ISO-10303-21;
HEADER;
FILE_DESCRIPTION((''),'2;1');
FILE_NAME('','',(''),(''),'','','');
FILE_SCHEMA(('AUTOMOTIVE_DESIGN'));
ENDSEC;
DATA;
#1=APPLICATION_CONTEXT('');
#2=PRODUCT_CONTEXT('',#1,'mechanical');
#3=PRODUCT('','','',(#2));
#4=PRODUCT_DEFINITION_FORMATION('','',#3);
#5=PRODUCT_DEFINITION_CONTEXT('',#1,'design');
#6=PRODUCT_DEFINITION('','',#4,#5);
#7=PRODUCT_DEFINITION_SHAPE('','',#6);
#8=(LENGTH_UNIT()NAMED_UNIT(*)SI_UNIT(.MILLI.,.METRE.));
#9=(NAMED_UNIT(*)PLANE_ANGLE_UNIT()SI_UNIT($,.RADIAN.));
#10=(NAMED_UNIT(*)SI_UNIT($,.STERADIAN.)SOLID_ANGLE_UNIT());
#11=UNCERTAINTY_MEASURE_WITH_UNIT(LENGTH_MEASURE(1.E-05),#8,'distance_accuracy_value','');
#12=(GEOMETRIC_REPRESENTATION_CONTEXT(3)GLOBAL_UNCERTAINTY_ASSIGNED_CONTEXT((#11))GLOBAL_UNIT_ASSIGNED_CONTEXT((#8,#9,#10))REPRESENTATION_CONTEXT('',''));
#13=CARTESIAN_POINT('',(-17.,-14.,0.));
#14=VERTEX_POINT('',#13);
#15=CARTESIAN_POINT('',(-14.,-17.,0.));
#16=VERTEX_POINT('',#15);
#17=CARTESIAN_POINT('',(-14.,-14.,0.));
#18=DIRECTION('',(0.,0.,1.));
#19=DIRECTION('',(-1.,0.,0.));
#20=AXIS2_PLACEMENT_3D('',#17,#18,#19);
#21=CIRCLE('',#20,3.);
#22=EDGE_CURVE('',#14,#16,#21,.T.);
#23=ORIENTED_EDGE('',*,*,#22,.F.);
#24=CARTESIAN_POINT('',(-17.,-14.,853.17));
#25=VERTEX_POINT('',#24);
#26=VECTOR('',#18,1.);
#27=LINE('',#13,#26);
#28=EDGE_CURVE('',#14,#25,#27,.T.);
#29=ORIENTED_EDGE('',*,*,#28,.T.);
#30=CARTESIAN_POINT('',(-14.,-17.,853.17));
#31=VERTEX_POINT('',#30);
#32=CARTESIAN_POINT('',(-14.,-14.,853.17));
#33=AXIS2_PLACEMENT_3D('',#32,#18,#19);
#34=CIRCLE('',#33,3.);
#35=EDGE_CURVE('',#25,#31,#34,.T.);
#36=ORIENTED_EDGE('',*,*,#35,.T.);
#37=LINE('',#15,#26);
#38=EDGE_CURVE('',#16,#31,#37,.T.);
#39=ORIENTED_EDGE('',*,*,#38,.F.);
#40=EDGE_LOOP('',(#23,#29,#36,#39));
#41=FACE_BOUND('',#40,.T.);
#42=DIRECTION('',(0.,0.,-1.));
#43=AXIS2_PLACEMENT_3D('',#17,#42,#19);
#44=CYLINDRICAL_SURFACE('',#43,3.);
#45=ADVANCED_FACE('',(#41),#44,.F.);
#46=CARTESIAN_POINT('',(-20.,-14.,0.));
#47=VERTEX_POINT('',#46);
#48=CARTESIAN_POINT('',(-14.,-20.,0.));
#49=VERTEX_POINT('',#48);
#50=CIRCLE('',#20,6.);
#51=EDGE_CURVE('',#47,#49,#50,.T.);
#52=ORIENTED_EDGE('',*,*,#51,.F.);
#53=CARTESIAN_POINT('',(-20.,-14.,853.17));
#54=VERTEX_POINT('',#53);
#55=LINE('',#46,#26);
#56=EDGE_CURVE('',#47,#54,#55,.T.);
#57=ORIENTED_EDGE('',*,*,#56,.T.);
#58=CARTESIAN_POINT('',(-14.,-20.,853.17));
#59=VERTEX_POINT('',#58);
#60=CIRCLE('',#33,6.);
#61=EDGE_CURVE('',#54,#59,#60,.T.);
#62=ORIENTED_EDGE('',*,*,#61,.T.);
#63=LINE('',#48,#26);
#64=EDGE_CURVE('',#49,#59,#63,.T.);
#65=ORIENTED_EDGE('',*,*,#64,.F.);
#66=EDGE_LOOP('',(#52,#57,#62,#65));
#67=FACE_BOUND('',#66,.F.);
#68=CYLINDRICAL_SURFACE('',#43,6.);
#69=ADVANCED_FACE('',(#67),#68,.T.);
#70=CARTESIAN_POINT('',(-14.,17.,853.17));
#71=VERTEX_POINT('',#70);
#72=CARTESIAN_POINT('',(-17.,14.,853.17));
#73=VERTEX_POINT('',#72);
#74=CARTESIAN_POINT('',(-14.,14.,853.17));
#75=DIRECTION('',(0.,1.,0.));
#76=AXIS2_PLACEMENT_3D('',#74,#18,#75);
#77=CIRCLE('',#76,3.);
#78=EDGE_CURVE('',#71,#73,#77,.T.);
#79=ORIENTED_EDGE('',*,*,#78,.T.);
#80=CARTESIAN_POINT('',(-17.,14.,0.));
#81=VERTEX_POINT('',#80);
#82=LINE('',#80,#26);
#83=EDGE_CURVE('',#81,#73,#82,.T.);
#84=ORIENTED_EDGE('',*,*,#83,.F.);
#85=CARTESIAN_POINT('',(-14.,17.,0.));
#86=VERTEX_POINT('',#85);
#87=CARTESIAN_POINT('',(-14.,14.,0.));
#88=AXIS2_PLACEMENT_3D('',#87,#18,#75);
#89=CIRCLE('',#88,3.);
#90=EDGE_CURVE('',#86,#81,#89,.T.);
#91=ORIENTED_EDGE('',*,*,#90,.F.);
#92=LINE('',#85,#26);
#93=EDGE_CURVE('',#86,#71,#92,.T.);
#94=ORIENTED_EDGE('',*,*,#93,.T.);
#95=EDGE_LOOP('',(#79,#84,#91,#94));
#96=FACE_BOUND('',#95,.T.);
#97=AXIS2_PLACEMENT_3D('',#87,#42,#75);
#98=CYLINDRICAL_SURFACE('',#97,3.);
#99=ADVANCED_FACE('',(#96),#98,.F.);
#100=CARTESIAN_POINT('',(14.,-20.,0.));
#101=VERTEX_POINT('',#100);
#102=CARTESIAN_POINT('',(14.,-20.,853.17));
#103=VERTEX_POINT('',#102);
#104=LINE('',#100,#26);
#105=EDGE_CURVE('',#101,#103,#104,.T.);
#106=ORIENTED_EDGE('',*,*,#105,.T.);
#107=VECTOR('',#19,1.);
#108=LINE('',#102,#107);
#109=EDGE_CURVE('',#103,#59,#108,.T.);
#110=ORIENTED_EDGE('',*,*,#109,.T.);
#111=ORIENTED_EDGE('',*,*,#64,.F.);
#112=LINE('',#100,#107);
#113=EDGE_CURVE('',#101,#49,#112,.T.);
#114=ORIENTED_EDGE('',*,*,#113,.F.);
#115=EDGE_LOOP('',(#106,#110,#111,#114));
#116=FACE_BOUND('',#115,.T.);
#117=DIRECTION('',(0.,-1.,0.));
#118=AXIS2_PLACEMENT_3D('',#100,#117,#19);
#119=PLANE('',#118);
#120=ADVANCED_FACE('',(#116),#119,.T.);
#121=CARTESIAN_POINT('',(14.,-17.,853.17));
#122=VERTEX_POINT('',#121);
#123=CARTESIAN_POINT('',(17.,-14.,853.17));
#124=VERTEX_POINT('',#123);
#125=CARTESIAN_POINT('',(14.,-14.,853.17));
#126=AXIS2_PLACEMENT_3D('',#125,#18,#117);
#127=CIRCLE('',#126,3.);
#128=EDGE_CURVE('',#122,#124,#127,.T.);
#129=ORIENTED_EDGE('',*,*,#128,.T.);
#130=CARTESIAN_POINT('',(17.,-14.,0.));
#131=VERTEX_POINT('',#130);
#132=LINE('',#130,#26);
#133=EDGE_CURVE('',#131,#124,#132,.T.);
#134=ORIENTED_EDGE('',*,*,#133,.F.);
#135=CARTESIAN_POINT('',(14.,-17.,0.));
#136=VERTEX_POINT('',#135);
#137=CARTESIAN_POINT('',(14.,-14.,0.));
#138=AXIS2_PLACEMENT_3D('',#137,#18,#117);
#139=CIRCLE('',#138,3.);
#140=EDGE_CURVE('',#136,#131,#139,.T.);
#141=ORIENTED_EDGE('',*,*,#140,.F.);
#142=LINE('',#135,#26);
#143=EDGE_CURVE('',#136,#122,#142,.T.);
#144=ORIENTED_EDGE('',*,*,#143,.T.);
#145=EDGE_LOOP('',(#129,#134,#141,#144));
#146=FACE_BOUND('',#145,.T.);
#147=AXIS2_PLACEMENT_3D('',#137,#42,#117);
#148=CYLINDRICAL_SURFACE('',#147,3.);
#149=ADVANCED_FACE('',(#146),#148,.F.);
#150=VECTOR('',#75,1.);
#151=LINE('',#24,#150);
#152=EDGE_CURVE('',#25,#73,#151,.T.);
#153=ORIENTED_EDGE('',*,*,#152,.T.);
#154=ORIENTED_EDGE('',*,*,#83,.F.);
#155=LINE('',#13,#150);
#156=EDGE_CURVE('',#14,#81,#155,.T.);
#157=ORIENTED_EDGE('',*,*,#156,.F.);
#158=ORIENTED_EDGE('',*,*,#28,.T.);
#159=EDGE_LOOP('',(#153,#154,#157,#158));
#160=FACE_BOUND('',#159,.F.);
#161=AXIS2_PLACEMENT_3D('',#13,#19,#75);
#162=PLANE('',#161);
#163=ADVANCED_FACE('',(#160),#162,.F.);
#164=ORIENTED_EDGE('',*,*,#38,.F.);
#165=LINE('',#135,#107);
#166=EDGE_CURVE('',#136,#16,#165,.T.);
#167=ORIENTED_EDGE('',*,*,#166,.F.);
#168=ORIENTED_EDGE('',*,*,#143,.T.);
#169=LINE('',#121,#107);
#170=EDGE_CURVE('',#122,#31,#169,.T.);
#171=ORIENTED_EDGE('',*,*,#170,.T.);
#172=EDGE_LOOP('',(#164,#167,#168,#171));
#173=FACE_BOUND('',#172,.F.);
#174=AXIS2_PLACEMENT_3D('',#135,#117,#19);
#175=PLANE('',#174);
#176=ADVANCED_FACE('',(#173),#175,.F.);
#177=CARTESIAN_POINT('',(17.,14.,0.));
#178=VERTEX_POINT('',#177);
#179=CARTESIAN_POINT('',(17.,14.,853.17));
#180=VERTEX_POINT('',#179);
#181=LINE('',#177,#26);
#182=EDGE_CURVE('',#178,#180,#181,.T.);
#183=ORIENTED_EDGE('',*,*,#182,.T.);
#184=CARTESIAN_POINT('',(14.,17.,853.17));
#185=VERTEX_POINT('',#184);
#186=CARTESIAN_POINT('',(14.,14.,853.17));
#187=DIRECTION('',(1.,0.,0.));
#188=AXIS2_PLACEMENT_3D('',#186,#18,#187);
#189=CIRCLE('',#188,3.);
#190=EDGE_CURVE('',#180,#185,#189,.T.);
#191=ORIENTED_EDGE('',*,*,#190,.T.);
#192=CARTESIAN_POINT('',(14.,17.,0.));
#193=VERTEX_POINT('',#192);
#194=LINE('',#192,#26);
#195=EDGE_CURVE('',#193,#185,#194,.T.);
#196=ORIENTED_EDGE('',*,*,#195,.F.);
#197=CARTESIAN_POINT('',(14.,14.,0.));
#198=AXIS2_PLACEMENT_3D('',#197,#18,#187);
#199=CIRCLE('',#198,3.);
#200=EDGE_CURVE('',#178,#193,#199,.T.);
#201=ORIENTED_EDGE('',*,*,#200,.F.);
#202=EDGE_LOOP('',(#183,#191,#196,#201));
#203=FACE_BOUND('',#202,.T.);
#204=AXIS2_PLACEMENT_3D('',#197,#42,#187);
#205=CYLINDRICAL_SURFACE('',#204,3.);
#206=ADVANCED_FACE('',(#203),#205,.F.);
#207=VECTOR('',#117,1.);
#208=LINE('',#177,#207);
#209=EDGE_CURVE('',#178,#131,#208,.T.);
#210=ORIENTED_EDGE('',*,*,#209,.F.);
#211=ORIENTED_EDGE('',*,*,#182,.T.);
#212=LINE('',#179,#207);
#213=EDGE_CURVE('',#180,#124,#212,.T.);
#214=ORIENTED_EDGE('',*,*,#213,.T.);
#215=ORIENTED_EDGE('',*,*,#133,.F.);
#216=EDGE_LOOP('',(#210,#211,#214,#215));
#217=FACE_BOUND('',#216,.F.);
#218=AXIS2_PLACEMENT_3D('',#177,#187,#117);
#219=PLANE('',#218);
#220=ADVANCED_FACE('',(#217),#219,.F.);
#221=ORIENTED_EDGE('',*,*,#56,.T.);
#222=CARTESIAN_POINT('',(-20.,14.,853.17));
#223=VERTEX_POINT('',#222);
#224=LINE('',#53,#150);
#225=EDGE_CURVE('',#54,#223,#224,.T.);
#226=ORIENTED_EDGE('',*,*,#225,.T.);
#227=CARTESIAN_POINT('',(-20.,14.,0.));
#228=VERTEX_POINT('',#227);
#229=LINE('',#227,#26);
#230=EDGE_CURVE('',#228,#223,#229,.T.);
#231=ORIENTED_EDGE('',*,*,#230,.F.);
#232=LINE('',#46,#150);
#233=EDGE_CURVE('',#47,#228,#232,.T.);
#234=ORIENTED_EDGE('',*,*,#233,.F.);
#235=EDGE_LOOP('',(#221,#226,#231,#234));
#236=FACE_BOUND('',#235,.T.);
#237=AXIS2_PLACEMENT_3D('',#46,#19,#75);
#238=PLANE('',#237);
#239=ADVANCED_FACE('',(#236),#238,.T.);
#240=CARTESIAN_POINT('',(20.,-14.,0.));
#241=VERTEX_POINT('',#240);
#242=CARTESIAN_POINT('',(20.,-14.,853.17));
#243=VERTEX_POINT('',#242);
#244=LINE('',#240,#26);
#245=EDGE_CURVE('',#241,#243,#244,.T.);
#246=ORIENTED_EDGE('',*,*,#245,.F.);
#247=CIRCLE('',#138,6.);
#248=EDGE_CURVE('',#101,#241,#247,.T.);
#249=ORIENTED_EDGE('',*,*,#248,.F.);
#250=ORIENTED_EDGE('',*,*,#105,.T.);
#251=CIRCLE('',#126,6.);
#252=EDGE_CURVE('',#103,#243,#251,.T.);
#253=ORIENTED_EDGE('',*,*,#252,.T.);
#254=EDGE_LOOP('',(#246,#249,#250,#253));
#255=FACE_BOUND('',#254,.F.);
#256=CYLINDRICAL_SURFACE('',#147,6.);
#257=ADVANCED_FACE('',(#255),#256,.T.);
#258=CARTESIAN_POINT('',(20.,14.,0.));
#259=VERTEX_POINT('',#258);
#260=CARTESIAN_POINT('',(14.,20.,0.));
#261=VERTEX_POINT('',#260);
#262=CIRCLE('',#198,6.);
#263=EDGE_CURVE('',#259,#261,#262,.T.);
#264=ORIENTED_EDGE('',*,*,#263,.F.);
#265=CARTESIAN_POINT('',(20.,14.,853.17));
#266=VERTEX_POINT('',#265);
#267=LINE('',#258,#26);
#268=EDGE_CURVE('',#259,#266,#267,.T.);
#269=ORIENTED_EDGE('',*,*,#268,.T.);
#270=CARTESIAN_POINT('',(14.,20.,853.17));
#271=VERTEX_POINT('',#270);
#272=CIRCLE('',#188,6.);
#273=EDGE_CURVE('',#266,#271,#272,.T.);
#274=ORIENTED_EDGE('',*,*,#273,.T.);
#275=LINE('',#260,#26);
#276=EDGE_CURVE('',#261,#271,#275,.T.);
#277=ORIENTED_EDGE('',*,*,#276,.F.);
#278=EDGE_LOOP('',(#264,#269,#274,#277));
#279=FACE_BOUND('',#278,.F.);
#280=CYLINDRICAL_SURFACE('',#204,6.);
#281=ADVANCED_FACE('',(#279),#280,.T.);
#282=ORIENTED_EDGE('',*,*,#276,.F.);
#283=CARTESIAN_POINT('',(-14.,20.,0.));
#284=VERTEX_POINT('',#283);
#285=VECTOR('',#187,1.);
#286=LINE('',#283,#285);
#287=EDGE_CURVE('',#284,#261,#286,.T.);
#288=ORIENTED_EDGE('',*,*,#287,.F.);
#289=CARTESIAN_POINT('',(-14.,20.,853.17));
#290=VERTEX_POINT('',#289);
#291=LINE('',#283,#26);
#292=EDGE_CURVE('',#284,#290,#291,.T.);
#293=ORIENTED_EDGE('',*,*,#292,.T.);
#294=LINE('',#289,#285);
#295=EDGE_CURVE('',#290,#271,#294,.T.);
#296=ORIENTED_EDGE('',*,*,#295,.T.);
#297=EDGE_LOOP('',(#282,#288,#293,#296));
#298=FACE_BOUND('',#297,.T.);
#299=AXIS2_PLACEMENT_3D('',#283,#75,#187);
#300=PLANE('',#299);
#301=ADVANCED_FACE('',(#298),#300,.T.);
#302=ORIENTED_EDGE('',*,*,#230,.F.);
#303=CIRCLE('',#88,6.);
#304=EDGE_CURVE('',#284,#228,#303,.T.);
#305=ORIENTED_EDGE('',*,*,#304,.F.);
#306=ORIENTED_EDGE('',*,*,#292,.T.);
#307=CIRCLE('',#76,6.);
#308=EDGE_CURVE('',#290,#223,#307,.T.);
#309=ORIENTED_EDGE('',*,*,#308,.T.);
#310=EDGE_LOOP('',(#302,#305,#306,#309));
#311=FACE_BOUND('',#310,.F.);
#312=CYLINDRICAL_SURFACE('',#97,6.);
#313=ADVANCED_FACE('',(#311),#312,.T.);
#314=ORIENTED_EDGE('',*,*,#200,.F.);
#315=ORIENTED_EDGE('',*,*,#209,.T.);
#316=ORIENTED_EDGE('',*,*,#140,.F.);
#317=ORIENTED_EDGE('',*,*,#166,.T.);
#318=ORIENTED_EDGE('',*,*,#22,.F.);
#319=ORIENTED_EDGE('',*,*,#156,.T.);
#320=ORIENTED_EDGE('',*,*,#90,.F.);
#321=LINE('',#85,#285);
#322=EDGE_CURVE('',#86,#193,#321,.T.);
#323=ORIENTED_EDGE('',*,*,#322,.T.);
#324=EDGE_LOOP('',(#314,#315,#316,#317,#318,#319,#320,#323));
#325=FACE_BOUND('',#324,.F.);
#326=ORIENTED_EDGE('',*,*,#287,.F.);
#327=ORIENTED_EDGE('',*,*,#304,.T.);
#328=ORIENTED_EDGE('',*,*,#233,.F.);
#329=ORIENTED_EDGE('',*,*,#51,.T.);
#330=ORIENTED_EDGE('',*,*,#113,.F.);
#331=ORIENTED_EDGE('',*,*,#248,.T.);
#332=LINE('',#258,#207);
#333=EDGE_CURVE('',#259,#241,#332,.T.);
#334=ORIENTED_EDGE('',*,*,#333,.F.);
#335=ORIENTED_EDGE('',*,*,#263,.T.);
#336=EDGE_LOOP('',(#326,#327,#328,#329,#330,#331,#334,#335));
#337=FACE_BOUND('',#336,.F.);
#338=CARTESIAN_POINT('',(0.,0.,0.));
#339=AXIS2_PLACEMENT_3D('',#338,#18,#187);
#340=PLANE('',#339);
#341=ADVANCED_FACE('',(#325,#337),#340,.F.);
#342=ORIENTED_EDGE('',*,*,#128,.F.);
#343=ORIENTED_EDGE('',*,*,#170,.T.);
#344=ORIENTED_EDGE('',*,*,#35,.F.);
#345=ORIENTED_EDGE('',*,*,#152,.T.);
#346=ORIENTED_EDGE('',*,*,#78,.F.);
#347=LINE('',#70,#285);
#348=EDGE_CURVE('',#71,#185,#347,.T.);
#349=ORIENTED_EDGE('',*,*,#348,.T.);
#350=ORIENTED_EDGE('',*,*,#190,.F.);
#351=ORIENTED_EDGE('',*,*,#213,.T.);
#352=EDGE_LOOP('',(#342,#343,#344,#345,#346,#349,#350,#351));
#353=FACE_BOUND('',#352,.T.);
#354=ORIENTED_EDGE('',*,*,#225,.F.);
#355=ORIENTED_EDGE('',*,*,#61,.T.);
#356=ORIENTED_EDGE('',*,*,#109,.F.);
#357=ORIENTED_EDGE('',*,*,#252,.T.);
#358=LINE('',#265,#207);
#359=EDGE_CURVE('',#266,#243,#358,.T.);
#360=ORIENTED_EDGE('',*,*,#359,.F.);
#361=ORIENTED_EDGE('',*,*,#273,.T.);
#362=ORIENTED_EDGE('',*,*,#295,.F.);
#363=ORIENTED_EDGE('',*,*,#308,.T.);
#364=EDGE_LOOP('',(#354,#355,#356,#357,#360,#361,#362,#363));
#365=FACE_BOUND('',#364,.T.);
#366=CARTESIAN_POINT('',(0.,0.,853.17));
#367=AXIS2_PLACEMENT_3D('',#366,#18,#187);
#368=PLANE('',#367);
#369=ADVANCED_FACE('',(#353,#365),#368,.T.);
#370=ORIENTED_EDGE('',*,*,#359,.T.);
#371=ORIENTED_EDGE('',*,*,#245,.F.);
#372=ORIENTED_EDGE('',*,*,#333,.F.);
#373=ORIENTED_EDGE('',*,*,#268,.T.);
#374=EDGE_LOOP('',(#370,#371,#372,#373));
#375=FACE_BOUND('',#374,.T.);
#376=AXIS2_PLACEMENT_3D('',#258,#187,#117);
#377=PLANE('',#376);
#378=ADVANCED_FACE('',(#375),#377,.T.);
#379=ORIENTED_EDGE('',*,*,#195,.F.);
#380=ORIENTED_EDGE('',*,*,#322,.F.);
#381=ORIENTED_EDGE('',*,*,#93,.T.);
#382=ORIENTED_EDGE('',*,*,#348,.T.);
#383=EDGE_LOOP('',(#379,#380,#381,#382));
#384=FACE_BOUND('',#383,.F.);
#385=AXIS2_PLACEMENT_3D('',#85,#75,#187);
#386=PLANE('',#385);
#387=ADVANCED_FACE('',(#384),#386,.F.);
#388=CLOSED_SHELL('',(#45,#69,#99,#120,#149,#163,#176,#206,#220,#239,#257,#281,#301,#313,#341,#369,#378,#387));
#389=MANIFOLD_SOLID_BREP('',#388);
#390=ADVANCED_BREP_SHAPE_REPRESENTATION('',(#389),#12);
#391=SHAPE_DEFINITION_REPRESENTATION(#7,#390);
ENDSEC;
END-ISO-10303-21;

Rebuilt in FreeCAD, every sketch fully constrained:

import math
import FreeCAD as App
import Part
import Sketcher
from FreeCAD import Vector
Q = App.Units.Quantity

doc = App.newDocument("Part")
body = doc.addObject("PartDesign::Body", "Body")

sketch1 = body.newObject("Sketcher::SketchObject", "Sketch")
sketch1.AttachmentSupport = (doc.getObject("XY_Plane"), [""])
sketch1.MapMode = "FlatFace"
sketch1.addGeometry([
    Part.LineSegment(Vector(-20, 14, 0), Vector(-20, -14, 0)),
    Part.ArcOfCircle(Part.Circle(Vector(-14, -14, 0), Vector(0, 0, 1), 6), math.radians(180), math.radians(270)),
    Part.LineSegment(Vector(-14, -20, 0), Vector(14, -20, 0)),
    Part.ArcOfCircle(Part.Circle(Vector(14, -14, 0), Vector(0, 0, 1), 6), math.radians(-90), math.radians(0)),
    Part.LineSegment(Vector(20, -14, 0), Vector(20, 14, 0)),
    Part.ArcOfCircle(Part.Circle(Vector(14, 14, 0), Vector(0, 0, 1), 6), math.radians(0), math.radians(90)),
    Part.LineSegment(Vector(14, 20, 0), Vector(-14, 20, 0)),
    Part.ArcOfCircle(Part.Circle(Vector(-14, 14, 0), Vector(0, 0, 1), 6), math.radians(90), math.radians(180)),
    Part.ArcOfCircle(Part.Circle(Vector(-14, 14, 0), Vector(0, 0, 1), 3), math.radians(90), math.radians(180)),
    Part.LineSegment(Vector(-14, 17, 0), Vector(14, 17, 0)),
    Part.ArcOfCircle(Part.Circle(Vector(14, 14, 0), Vector(0, 0, 1), 3), math.radians(0), math.radians(90)),
    Part.LineSegment(Vector(17, 14, 0), Vector(17, -14, 0)),
    Part.ArcOfCircle(Part.Circle(Vector(14, -14, 0), Vector(0, 0, 1), 3), math.radians(-90), math.radians(0)),
    Part.LineSegment(Vector(14, -17, 0), Vector(-14, -17, 0)),
    Part.ArcOfCircle(Part.Circle(Vector(-14, -14, 0), Vector(0, 0, 1), 3), math.radians(180), math.radians(270)),
    Part.LineSegment(Vector(-17, -14, 0), Vector(-17, 14, 0)),
], False)
sketch1.addConstraint([
    Sketcher.Constraint("Tangent", 0, 2, 1, 1),
    Sketcher.Constraint("Tangent", 1, 2, 2, 1),
    Sketcher.Constraint("Tangent", 2, 2, 3, 1),
    Sketcher.Constraint("Tangent", 3, 2, 4, 1),
    Sketcher.Constraint("Tangent", 4, 2, 5, 1),
    Sketcher.Constraint("Tangent", 5, 2, 6, 1),
    Sketcher.Constraint("Tangent", 6, 2, 7, 1),
    Sketcher.Constraint("Tangent", 7, 2, 0, 1),
    Sketcher.Constraint("Tangent", 8, 1, 9, 1),
    Sketcher.Constraint("Tangent", 9, 2, 10, 2),
    Sketcher.Constraint("Tangent", 10, 1, 11, 1),
    Sketcher.Constraint("Tangent", 11, 2, 12, 2),
    Sketcher.Constraint("Tangent", 12, 1, 13, 1),
    Sketcher.Constraint("Tangent", 13, 2, 14, 2),
    Sketcher.Constraint("Tangent", 14, 1, 15, 1),
    Sketcher.Constraint("Tangent", 15, 2, 8, 2),
    Sketcher.Constraint("Vertical", 0),
    Sketcher.Constraint("Horizontal", 2),
    Sketcher.Constraint("Vertical", 4),
    Sketcher.Constraint("Horizontal", 6),
    Sketcher.Constraint("Horizontal", 9),
    Sketcher.Constraint("Vertical", 11),
    Sketcher.Constraint("Horizontal", 13),
    Sketcher.Constraint("Vertical", 15),
    Sketcher.Constraint("Coincident", 8, 3, 7, 3),
    Sketcher.Constraint("Coincident", 10, 3, 5, 3),
    Sketcher.Constraint("Coincident", 12, 3, 3, 3),
    Sketcher.Constraint("Equal", 1, 3),
    Sketcher.Constraint("Equal", 3, 5),
    Sketcher.Constraint("Equal", 5, 7),
    Sketcher.Constraint("Equal", 12, 14),
    Sketcher.Constraint("Symmetric", 1, 3, 5, 3, -1, 1),
    Sketcher.Constraint("Equal", 13, 0),
    Sketcher.Constraint("Radius", 1, Q("6 mm")),
    Sketcher.Constraint("Radius", 8, Q("3 mm")),
    Sketcher.Constraint("DistanceX", 0, 2, -1, 1, Q("20 mm")),
])
pad1 = body.newObject("PartDesign::Pad", "Pad")
pad1.Profile = sketch1
pad1.Length = 853.17

doc.recompute()
